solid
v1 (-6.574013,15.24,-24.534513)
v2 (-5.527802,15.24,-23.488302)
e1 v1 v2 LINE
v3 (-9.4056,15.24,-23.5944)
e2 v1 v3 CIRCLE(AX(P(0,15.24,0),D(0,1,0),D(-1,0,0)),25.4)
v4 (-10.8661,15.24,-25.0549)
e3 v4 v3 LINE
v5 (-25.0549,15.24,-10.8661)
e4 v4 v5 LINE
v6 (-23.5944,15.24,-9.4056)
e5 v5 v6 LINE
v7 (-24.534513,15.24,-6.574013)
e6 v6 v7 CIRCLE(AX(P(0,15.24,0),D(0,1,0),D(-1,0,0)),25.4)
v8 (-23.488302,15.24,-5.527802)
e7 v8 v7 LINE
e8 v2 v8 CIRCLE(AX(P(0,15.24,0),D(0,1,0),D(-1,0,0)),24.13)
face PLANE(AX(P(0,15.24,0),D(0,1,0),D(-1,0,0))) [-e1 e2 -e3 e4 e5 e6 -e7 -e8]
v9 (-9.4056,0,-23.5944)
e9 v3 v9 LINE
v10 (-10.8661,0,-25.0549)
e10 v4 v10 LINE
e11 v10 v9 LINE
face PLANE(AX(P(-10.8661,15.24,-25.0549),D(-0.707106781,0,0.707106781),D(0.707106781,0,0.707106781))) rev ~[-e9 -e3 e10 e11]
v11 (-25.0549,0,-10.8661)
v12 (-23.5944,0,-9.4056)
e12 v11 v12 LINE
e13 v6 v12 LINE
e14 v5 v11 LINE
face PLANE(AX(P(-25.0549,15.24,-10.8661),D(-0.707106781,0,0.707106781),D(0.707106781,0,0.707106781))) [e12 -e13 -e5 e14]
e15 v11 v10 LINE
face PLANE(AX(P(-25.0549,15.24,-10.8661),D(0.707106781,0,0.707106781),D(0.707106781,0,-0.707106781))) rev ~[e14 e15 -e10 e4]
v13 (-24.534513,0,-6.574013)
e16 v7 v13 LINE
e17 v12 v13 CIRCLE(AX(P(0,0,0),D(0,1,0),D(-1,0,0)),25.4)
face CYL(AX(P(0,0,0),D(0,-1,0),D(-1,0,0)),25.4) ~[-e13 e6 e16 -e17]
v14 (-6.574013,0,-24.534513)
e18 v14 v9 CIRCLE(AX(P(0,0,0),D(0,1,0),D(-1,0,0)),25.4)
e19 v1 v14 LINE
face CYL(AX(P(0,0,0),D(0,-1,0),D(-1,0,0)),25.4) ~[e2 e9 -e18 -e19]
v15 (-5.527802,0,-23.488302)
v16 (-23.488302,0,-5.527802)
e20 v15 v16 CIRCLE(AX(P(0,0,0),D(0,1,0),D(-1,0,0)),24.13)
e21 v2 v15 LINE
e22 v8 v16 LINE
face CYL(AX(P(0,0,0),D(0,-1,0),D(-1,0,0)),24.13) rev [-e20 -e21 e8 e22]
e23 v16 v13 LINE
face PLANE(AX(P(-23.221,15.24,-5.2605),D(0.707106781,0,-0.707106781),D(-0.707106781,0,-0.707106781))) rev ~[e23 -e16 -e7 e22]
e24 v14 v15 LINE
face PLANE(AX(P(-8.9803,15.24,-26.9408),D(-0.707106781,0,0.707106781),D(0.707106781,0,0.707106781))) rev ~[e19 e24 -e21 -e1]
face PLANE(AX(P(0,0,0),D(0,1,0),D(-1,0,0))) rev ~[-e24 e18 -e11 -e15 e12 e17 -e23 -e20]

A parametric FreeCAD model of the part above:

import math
import FreeCAD as App
import Part
import Sketcher
from FreeCAD import Vector
Q = App.Units.Quantity


def add_polygon(sketch, points):
    """Adds a closed chain of lines whose ends are joined by coincident constraints."""
    first, n = sketch.GeometryCount, len(points)
    for a, b in zip(points, points[1:] + points[:1]):
        sketch.addGeometry(Part.LineSegment(App.Vector(*a, 0), App.Vector(*b, 0)), False)
    for i in range(n):
        sketch.addConstraint(Sketcher.Constraint("Coincident", first + i, 2, first + (i + 1) % n, 1))

doc = App.newDocument("Part")
body = doc.addObject("PartDesign::Body", "Body")

sketch1 = doc.addObject("Sketcher::SketchObject", "Sketch")
body.addObject(sketch1)
sketch1.AttachmentSupport = (doc.XZ_Plane, [""])
sketch1.MapMode = "FlatFace"
sketch1.addGeometry([
    Part.LineSegment(Vector(-25.4, 0, 0), Vector(-24.1, 0, 0)),
    Part.ArcOfCircle(Part.Circle(Vector(0, 0, 0), Vector(0, 0, 1), 24.1), math.radians(180), math.radians(270)),
    Part.LineSegment(Vector(0, -24.1, 0), Vector(0, -25.4, 0)),
    Part.ArcOfCircle(Part.Circle(Vector(0, 0, 0), Vector(0, 0, 1), 25.4), math.radians(180), math.radians(270)),
], False)
sketch1.addConstraint([
    Sketcher.Constraint("Coincident", 0, 2, 1, 1),
    Sketcher.Constraint("Coincident", 1, 2, 2, 1),
    Sketcher.Constraint("Coincident", 2, 2, 3, 2),
    Sketcher.Constraint("Coincident", 3, 1, 0, 1),
    Sketcher.Constraint("Horizontal", 0),
    Sketcher.Constraint("Vertical", 2),
    Sketcher.Constraint("Coincident", 1, 3, -1, 1),
    Sketcher.Constraint("Coincident", 3, 3, -1, 1),
    Sketcher.Constraint("PointOnObject", 0, 2, -1),
    Sketcher.Constraint("PointOnObject", 1, 2, -2),
    Sketcher.Constraint("Radius", 3, Q("1 in")),
    Sketcher.Constraint("Radius", 1, Q("0.95 in")),
])
pad1 = doc.addObject("PartDesign::Pad", "Pad")
body.addObject(pad1)
pad1.Profile = sketch1
pad1.Length = Q("0.6 in")
pad1.Reversed = True

sketch2 = doc.addObject("Sketcher::SketchObject", "Sketch001")
body.addObject(sketch2)
sketch2.AttachmentSupport = (doc.XZ_Plane, [""])
sketch2.MapMode = "FlatFace"
sketch2.AttachmentOffset = App.Placement(Vector(0, 0, -0.6 * 25.4), App.Rotation())
sketch2.addGeometry([
    Part.LineSegment(Vector(-10.9, -25.1, 0), Vector(-18, -18, 0)),
    Part.ArcOfCircle(Part.Circle(Vector(0, 0, 0), Vector(0, 0, 1), 25.4), math.radians(-135), math.radians(-112)),
    Part.LineSegment(Vector(-9.4, -23.6, 0), Vector(-10.9, -25.1, 0)),
    Part.LineSegment(Vector(-18, -18, 0), Vector(-25.1, -10.9, 0)),
    Part.LineSegment(Vector(-25.1, -10.9, 0), Vector(-23.6, -9.4, 0)),
    Part.ArcOfCircle(Part.Circle(Vector(0, 0, 0), Vector(0, 0, 1), 25.4), math.radians(-158), math.radians(-135)),
], False)
sketch2.addConstraint([
    Sketcher.Constraint("Tangent", 0, 2, 1, 1),
    Sketcher.Constraint("Coincident", 1, 2, 2, 1),
    Sketcher.Constraint("Coincident", 2, 2, 0, 1),
    Sketcher.Constraint("Coincident", 3, 2, 4, 1),
    Sketcher.Constraint("Coincident", 4, 2, 5, 1),
    Sketcher.Constraint("Tangent", 5, 2, 3, 1),
    Sketcher.Constraint("Coincident", 1, 3, -1, 1),
    Sketcher.Constraint("Coincident", 5, 3, -1, 1),
    Sketcher.Constraint("Coincident", 5, 2, 0, 2),
    Sketcher.Constraint("Perpendicular", 0, 2),
    Sketcher.Constraint("Perpendicular", 3, 4),
    Sketcher.Constraint("Equal", 0, 3),
    Sketcher.Constraint("Radius", 1, Q("1 in")),
    Sketcher.Constraint("Angle", 0, Q("135 deg")),
    Sketcher.Constraint("Distance", 0, Q("0.395 in")),
])
pad2 = doc.addObject("PartDesign::Pad", "Pad001")
body.addObject(pad2)
pad2.Profile = sketch2
pad2.Length = Q("0.6 in")

sketch3 = doc.addObject("Sketcher::SketchObject", "Sketch002")
body.addObject(sketch3)
sketch3.AttachmentSupport = (doc.XZ_Plane, [""])
sketch3.MapMode = "FlatFace"
sketch3.AttachmentOffset = App.Placement(Vector(0, 0, -0.6 * 25.4), App.Rotation())
add_polygon(sketch3, [(-23, -5), (-27, -9), (-30, 2), (-22, 2)])
add_polygon(sketch3, [(3, -31), (-9, -27), (-5, -23), (3, -21)])
sketch3.addConstraint([
    Sketcher.Constraint("Horizontal", 2),
    Sketcher.Constraint("Vertical", 7),
    Sketcher.Constraint("Parallel", 0, 5),
    Sketcher.Constraint("Equal", 0, 5),
    Sketcher.Constraint("Angle", 0, Q("-135 deg")),
    Sketcher.Constraint("DistanceX", -1, 1, 6, 2, Q("0.125 in")),
    Sketcher.Constraint("DistanceY", 6, 2, -1, 1, Q("0.8125 in")),
    Sketcher.Constraint("Distance", 0, Q("0.2071 in")),
    Sketcher.Constraint("DistanceX", 2, 1, 2, 2, 8.7204),
    Sketcher.Constraint("DistanceY", 7, 2, 7, 1, 10.067),
    Sketcher.Constraint("DistanceX", 2, 2, -1, 1, Q("0.8487 in")),
    Sketcher.Constraint("DistanceY", 3, 2, -1, 1, Q("0.2071 in")),
    Sketcher.Constraint("DistanceX", 5, 2, -1, 1, Q("0.2071 in")),
    Sketcher.Constraint("DistanceX", 3, 2, 2, 2, Q("0.0655 in")),
    Sketcher.Constraint("DistanceY", 4, 2, 0, 2, Q("0.7071 in")),
    Sketcher.Constraint("Distance", 1, 11.2812),
])
pocket1 = doc.addObject("PartDesign::Pocket", "Pocket")
body.addObject(pocket1)
pocket1.Profile = sketch3
pocket1.Type = "ThroughAll"
pocket1.Reversed = True

doc.recompute()
